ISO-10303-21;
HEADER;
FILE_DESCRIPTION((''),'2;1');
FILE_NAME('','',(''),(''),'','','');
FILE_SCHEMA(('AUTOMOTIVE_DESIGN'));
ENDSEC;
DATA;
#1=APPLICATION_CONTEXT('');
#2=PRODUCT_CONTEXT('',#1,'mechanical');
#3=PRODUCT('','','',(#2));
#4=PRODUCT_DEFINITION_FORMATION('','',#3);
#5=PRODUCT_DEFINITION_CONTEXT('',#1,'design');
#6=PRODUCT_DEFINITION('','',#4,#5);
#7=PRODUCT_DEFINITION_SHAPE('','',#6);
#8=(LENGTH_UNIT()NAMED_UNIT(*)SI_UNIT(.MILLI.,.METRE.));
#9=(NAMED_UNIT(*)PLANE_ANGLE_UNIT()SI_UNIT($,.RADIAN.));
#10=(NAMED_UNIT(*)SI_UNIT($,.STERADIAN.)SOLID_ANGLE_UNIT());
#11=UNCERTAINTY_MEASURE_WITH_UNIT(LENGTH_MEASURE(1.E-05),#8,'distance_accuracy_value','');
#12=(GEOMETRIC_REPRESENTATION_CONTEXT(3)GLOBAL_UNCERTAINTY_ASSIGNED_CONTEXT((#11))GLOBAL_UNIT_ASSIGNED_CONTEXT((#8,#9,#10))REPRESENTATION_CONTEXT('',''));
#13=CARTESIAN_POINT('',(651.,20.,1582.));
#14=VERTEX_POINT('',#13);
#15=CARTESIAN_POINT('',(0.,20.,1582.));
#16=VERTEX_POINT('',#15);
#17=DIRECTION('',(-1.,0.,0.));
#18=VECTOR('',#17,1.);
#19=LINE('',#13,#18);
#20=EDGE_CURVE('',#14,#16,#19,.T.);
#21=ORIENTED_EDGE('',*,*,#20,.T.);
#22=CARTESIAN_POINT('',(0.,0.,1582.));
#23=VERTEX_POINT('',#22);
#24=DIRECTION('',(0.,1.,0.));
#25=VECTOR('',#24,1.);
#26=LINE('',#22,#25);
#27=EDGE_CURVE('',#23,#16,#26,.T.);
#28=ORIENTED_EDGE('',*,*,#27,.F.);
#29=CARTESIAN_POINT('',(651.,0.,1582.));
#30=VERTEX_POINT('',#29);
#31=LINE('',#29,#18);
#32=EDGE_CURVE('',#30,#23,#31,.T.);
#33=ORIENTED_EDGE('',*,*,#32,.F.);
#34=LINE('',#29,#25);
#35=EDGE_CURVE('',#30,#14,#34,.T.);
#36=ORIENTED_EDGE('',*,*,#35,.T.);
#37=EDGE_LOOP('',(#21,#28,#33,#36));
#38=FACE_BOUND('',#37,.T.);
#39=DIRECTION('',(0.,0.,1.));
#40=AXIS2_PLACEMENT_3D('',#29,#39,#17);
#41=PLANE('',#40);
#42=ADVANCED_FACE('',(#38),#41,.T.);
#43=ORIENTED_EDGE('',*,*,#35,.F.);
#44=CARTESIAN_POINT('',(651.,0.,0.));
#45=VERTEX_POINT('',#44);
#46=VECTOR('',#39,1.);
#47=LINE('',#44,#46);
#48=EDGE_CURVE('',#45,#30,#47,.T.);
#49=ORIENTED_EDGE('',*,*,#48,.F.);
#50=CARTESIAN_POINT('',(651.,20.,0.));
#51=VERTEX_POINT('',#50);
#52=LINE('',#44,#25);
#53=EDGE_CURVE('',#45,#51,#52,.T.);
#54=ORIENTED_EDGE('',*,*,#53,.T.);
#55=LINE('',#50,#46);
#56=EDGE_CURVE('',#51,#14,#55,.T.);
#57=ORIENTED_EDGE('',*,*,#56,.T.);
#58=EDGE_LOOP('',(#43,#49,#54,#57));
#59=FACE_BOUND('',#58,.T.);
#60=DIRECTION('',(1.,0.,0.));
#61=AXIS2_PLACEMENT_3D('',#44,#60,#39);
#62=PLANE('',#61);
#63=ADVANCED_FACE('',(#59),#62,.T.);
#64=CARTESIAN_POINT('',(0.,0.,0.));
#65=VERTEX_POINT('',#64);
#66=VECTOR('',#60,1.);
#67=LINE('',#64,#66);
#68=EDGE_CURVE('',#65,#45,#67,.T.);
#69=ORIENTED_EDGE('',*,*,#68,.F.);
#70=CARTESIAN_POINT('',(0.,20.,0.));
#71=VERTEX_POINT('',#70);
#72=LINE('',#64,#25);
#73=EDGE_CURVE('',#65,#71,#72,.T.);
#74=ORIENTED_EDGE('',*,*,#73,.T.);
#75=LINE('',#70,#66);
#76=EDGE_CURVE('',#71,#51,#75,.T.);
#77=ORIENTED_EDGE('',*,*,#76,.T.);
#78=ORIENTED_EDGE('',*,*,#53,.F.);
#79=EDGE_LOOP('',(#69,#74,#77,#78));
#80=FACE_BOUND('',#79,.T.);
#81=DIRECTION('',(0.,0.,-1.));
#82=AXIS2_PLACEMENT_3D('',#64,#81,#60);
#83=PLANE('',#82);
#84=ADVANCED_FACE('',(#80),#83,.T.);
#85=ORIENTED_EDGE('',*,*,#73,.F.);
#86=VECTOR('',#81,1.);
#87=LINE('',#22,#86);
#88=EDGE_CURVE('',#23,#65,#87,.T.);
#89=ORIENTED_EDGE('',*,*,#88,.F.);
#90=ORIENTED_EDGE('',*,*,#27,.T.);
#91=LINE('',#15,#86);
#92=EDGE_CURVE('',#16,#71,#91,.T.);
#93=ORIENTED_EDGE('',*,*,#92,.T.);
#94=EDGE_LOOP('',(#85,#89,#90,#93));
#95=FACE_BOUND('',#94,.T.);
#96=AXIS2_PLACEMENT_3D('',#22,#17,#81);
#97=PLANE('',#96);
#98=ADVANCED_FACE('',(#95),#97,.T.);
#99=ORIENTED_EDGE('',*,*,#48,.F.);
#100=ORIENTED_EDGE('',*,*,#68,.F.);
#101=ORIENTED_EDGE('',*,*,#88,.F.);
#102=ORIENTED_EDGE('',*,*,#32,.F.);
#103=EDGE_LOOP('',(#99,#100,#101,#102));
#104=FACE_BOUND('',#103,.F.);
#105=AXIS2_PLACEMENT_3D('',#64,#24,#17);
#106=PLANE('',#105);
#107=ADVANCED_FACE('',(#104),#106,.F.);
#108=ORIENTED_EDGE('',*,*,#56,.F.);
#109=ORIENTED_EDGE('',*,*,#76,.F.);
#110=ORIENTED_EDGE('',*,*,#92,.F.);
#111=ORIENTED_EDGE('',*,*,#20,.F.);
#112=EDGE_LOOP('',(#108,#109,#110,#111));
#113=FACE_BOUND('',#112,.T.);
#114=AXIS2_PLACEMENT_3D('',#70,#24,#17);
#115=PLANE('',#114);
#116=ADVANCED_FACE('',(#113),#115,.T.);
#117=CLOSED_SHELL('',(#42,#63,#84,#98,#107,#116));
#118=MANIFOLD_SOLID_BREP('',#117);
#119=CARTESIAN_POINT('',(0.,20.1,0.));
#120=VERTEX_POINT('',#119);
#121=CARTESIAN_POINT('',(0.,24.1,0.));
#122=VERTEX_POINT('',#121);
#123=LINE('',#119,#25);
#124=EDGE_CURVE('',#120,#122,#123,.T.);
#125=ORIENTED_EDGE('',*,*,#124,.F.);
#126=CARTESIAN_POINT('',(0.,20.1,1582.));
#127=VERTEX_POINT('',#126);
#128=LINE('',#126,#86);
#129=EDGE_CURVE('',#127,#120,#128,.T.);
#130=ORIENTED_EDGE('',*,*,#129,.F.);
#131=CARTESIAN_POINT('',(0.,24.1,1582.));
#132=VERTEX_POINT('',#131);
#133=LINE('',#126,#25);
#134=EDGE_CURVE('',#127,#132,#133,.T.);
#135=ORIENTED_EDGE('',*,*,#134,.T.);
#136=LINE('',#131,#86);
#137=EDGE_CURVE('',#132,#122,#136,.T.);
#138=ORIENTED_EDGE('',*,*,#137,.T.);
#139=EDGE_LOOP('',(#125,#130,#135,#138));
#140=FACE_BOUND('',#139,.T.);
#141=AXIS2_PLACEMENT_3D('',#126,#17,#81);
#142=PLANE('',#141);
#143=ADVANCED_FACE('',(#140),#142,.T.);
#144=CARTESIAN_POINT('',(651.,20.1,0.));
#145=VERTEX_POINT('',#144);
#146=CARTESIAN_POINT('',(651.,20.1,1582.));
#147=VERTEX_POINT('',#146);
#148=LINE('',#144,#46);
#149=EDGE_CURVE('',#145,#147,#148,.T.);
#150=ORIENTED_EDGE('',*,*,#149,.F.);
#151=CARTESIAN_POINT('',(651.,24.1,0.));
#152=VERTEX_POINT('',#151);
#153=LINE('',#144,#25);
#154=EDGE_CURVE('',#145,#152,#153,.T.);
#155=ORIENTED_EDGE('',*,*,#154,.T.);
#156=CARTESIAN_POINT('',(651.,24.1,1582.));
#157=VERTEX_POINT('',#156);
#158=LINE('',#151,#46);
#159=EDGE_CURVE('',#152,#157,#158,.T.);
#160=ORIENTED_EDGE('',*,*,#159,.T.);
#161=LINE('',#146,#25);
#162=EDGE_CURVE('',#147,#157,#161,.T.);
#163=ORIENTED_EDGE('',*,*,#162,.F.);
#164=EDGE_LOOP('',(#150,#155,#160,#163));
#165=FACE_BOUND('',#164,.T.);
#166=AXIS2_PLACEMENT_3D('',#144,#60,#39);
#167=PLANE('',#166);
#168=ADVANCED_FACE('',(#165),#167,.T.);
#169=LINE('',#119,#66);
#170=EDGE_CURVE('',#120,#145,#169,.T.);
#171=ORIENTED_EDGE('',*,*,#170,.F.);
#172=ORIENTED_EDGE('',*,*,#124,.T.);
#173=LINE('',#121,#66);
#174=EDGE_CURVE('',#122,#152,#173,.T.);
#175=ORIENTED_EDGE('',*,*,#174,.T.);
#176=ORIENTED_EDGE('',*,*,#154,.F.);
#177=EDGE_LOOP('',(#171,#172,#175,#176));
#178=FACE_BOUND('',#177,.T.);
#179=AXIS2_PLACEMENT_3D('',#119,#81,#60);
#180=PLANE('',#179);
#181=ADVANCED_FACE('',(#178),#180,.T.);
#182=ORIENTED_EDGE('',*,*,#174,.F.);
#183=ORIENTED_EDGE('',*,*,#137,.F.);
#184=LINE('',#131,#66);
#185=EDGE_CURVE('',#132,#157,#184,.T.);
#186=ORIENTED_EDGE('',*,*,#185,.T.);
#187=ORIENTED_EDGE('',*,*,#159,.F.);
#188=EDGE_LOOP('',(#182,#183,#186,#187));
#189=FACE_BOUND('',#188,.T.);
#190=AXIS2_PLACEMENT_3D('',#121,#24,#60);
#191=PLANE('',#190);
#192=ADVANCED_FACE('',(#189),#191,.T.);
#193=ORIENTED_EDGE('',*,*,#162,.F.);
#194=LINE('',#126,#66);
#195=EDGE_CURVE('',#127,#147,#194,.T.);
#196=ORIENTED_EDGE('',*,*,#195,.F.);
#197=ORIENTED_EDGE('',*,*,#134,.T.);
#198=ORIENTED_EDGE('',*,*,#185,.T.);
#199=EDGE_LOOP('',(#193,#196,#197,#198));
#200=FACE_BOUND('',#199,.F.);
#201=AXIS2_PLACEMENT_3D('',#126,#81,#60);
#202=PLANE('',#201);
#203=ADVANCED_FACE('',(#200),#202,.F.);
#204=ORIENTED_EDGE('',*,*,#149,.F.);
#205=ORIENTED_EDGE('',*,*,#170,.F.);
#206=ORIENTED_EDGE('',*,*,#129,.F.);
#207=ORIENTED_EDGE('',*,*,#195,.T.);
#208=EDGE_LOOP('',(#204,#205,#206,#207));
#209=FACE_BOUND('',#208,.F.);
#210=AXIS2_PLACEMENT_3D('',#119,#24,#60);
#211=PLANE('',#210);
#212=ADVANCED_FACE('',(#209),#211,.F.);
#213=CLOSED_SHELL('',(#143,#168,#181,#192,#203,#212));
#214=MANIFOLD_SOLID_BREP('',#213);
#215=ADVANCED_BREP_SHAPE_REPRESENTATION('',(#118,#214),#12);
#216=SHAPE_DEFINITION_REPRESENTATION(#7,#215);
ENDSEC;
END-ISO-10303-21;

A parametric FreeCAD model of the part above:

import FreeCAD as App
import Part
import Sketcher
Q = App.Units.Quantity


def add_polygon(sketch, points):
    """Adds a closed chain of lines whose ends are joined by coincident constraints."""
    first, n = sketch.GeometryCount, len(points)
    for a, b in zip(points, points[1:] + points[:1]):
        sketch.addGeometry(Part.LineSegment(App.Vector(*a, 0), App.Vector(*b, 0)), False)
    for i in range(n):
        sketch.addConstraint(Sketcher.Constraint("Coincident", first + i, 2, first + (i + 1) % n, 1))

doc = App.newDocument("Part")
params = doc.addObject("Spreadsheet::Sheet", "Params")
for row, (alias, value) in enumerate([
    ("sketch1_width", "651 mm"),
    ("sketch1_height", "1582 mm"),
    ("pad1_length", "20 mm"),
    ("sketch2_width", "651 mm"),
    ("sketch2_height", "1582 mm"),
    ("pad2_length", "4 mm"),
], start=1):
    params.set(f"A{row}", alias)
    params.set(f"B{row}", "=" + value)
    params.setAlias(f"B{row}", alias)

body = doc.addObject("PartDesign::Body", "Body")
body.AllowCompound = True

# Sketch on XZ plane
sketch1 = doc.addObject("Sketcher::SketchObject", "Sketch")
body.addObject(sketch1)
sketch1.AttachmentSupport = (doc.XZ_Plane, [""])
sketch1.MapMode = "FlatFace"
add_polygon(sketch1, [(651, 0), (0, 0), (0, 1582), (651, 1582)])  # lines 0-3
sketch1.addConstraint(Sketcher.Constraint("Horizontal", 0))
sketch1.addConstraint(Sketcher.Constraint("Vertical", 1))
sketch1.addConstraint(Sketcher.Constraint("Horizontal", 2))
sketch1.addConstraint(Sketcher.Constraint("Vertical", 3))
sketch1.addConstraint(Sketcher.Constraint("Coincident", 0, 2, -1, 1))
sketch1.addConstraint(Sketcher.Constraint("DistanceX", 0, 2, 0, 1, Q("651 mm")))
sketch1.addConstraint(Sketcher.Constraint("DistanceY", 1, 1, 1, 2, Q("1582 mm")))
sketch1.setExpression("Constraints[9]", "Params.sketch1_width")
sketch1.setExpression("Constraints[10]", "Params.sketch1_height")
pad1 = doc.addObject("PartDesign::Pad", "Pad")
body.addObject(pad1)
pad1.Profile = sketch1
pad1.setExpression("Length", "Params.pad1_length")
pad1.Reversed = True

# Sketch on XZ plane
sketch2 = doc.addObject("Sketcher::SketchObject", "Sketch001")
body.addObject(sketch2)
sketch2.AttachmentSupport = (doc.XZ_Plane, [""])
sketch2.MapMode = "FlatFace"
sketch2.AttachmentOffset = App.Placement(App.Vector(0, 0, -20.1), App.Rotation())
add_polygon(sketch2, [(0, 0), (0, 1582), (651, 1582), (651, 0)])  # lines 0-3
sketch2.addConstraint(Sketcher.Constraint("Vertical", 0))
sketch2.addConstraint(Sketcher.Constraint("Horizontal", 1))
sketch2.addConstraint(Sketcher.Constraint("Vertical", 2))
sketch2.addConstraint(Sketcher.Constraint("Horizontal", 3))
sketch2.addConstraint(Sketcher.Constraint("Coincident", 3, 2, -1, 1))
sketch2.addConstraint(Sketcher.Constraint("DistanceX", 1, 1, 1, 2, Q("651 mm")))
sketch2.addConstraint(Sketcher.Constraint("DistanceY", 0, 1, 0, 2, Q("1582 mm")))
sketch2.setExpression("Constraints[9]", "Params.sketch2_width")
sketch2.setExpression("Constraints[10]", "Params.sketch2_height")
pad2 = doc.addObject("PartDesign::Pad", "Pad001")
body.addObject(pad2)
pad2.Profile = sketch2
pad2.setExpression("Length", "Params.pad2_length")
pad2.Reversed = True

doc.recompute()
